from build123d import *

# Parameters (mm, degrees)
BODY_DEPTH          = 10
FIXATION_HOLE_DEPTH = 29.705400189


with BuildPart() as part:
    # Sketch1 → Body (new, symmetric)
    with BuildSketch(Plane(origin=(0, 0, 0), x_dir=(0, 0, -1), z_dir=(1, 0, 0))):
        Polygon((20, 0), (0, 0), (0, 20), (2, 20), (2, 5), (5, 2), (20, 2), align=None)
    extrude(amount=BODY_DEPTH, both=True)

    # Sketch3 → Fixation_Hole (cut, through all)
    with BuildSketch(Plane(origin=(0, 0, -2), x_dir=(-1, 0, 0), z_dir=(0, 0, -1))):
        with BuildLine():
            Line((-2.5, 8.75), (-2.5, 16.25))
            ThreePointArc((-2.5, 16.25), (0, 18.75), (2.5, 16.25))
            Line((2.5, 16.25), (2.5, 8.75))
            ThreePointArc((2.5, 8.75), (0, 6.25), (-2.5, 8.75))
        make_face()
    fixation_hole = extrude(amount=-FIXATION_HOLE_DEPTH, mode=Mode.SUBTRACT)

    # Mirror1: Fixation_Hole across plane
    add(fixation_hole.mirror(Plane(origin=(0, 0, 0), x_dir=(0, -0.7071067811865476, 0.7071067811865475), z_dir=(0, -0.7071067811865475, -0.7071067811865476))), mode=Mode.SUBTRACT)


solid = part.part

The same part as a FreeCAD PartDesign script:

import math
import FreeCAD as App
import Part
import Sketcher

doc = App.newDocument("Part")
body = doc.addObject("PartDesign::Body", "Body")

# Sketch on YZ plane
sketch1 = body.newObject("Sketcher::SketchObject", "Sketch")
sketch1.AttachmentSupport = (doc.getObject("YZ_Plane"), [""])
sketch1.MapMode = "FlatFace"
sketch1.addGeometry([
    Part.LineSegment(App.Vector(0, 0, 0), App.Vector(0, -20, 0)),  # 0
    Part.LineSegment(App.Vector(0, -20, 0), App.Vector(2, -20, 0)),  # 1
    Part.LineSegment(App.Vector(2, -20, 0), App.Vector(2, -5, 0)),  # 2
    Part.LineSegment(App.Vector(2, -5, 0), App.Vector(5, -2, 0)),  # 3
    Part.LineSegment(App.Vector(5, -2, 0), App.Vector(20, -2, 0)),  # 4
    Part.LineSegment(App.Vector(20, -2, 0), App.Vector(20, 0, 0)),  # 5
    Part.LineSegment(App.Vector(20, 0, 0), App.Vector(0, 0, 0)),  # 6
], False)
sketch1.addConstraint([
    Sketcher.Constraint("Coincident", 0, 2, 1, 1),
    Sketcher.Constraint("Coincident", 1, 2, 2, 1),
    Sketcher.Constraint("Coincident", 2, 2, 3, 1),
    Sketcher.Constraint("Coincident", 3, 2, 4, 1),
    Sketcher.Constraint("Coincident", 4, 2, 5, 1),
    Sketcher.Constraint("Coincident", 5, 2, 6, 1),
    Sketcher.Constraint("Coincident", 6, 2, 0, 1),
    Sketcher.Constraint("Vertical", 0),
    Sketcher.Constraint("Horizontal", 1),
    Sketcher.Constraint("Vertical", 2),
    Sketcher.Constraint("Horizontal", 4),
    Sketcher.Constraint("Vertical", 5),
    Sketcher.Constraint("Horizontal", 6),
    Sketcher.Constraint("Coincident", 6, 2, -1, 1),
    Sketcher.Constraint("Equal", 6, 0),
    Sketcher.Constraint("Equal", 4, 2),
    Sketcher.Constraint("Equal", 1, 5),
    Sketcher.Constraint("DistanceX", 1, 1, 1, 2, 2.0),
    Sketcher.Constraint("DistanceX", 4, 1, 4, 2, 15.0),
    Sketcher.Constraint("DistanceX", 6, 2, 6, 1, 20.0),
])
pad1 = body.newObject("PartDesign::Pad", "Pad")
pad1.Profile = sketch1
pad1.Length = 20
pad1.Midplane = True

# Sketch on XY plane
sketch2 = body.newObject("Sketcher::SketchObject", "Sketch001")
sketch2.AttachmentSupport = (doc.getObject("XY_Plane"), [""])
sketch2.MapMode = "FlatFace"
sketch2.AttachmentOffset = App.Placement(App.Vector(0, 0, -2), App.Rotation())
sketch2.addGeometry([
    Part.LineSegment(App.Vector(2.5, 16.25, 0), App.Vector(2.5, 8.75, 0)),
    Part.ArcOfCircle(Part.Circle(App.Vector(0, 8.75, 0), App.Vector(0, 0, 1), 2.5), math.radians(180), math.radians(360)),
    Part.LineSegment(App.Vector(-2.5, 8.75, 0), App.Vector(-2.5, 16.25, 0)),
    Part.ArcOfCircle(Part.Circle(App.Vector(0, 16.25, 0), App.Vector(0, 0, 1), 2.5), math.radians(0), math.radians(180)),
], False)
sketch2.addConstraint([
    Sketcher.Constraint("Tangent", 0, 2, 1, 2),
    Sketcher.Constraint("Tangent", 1, 1, 2, 1),
    Sketcher.Constraint("Tangent", 2, 2, 3, 2),
    Sketcher.Constraint("Tangent", 3, 1, 0, 1),
    Sketcher.Constraint("Vertical", 0),
    Sketcher.Constraint("Vertical", 2),
    Sketcher.Constraint("PointOnObject", 1, 3, -2),
    Sketcher.Constraint("Radius", 1, 2.5),
    Sketcher.Constraint("DistanceY", 0, 2, 0, 1, 7.5),
    Sketcher.Constraint("DistanceY", -1, 1, 1, 3, 8.75),
])
pocket1 = body.newObject("PartDesign::Pocket", "Pocket")
pocket1.Profile = sketch2
pocket1.Type = "ThroughAll"
pocket1.Reversed = True
doc.recompute()

datumplane = body.newObject("PartDesign::Plane", "DatumPlane")
datumplane.Placement = App.Placement(App.Vector(0, 0, 0), App.Rotation(App.Vector(0, -0.707106781, 0.707106781), App.Vector(-1, 0, 0), App.Vector(0, -0.707106781, -0.707106781), "ZXY"))
mirrored = body.newObject("PartDesign::Mirrored", "Mirrored")
mirrored.Originals = [pocket1]
mirrored.MirrorPlane = (datumplane, [""])
body.Tip = mirrored

doc.recompute()
